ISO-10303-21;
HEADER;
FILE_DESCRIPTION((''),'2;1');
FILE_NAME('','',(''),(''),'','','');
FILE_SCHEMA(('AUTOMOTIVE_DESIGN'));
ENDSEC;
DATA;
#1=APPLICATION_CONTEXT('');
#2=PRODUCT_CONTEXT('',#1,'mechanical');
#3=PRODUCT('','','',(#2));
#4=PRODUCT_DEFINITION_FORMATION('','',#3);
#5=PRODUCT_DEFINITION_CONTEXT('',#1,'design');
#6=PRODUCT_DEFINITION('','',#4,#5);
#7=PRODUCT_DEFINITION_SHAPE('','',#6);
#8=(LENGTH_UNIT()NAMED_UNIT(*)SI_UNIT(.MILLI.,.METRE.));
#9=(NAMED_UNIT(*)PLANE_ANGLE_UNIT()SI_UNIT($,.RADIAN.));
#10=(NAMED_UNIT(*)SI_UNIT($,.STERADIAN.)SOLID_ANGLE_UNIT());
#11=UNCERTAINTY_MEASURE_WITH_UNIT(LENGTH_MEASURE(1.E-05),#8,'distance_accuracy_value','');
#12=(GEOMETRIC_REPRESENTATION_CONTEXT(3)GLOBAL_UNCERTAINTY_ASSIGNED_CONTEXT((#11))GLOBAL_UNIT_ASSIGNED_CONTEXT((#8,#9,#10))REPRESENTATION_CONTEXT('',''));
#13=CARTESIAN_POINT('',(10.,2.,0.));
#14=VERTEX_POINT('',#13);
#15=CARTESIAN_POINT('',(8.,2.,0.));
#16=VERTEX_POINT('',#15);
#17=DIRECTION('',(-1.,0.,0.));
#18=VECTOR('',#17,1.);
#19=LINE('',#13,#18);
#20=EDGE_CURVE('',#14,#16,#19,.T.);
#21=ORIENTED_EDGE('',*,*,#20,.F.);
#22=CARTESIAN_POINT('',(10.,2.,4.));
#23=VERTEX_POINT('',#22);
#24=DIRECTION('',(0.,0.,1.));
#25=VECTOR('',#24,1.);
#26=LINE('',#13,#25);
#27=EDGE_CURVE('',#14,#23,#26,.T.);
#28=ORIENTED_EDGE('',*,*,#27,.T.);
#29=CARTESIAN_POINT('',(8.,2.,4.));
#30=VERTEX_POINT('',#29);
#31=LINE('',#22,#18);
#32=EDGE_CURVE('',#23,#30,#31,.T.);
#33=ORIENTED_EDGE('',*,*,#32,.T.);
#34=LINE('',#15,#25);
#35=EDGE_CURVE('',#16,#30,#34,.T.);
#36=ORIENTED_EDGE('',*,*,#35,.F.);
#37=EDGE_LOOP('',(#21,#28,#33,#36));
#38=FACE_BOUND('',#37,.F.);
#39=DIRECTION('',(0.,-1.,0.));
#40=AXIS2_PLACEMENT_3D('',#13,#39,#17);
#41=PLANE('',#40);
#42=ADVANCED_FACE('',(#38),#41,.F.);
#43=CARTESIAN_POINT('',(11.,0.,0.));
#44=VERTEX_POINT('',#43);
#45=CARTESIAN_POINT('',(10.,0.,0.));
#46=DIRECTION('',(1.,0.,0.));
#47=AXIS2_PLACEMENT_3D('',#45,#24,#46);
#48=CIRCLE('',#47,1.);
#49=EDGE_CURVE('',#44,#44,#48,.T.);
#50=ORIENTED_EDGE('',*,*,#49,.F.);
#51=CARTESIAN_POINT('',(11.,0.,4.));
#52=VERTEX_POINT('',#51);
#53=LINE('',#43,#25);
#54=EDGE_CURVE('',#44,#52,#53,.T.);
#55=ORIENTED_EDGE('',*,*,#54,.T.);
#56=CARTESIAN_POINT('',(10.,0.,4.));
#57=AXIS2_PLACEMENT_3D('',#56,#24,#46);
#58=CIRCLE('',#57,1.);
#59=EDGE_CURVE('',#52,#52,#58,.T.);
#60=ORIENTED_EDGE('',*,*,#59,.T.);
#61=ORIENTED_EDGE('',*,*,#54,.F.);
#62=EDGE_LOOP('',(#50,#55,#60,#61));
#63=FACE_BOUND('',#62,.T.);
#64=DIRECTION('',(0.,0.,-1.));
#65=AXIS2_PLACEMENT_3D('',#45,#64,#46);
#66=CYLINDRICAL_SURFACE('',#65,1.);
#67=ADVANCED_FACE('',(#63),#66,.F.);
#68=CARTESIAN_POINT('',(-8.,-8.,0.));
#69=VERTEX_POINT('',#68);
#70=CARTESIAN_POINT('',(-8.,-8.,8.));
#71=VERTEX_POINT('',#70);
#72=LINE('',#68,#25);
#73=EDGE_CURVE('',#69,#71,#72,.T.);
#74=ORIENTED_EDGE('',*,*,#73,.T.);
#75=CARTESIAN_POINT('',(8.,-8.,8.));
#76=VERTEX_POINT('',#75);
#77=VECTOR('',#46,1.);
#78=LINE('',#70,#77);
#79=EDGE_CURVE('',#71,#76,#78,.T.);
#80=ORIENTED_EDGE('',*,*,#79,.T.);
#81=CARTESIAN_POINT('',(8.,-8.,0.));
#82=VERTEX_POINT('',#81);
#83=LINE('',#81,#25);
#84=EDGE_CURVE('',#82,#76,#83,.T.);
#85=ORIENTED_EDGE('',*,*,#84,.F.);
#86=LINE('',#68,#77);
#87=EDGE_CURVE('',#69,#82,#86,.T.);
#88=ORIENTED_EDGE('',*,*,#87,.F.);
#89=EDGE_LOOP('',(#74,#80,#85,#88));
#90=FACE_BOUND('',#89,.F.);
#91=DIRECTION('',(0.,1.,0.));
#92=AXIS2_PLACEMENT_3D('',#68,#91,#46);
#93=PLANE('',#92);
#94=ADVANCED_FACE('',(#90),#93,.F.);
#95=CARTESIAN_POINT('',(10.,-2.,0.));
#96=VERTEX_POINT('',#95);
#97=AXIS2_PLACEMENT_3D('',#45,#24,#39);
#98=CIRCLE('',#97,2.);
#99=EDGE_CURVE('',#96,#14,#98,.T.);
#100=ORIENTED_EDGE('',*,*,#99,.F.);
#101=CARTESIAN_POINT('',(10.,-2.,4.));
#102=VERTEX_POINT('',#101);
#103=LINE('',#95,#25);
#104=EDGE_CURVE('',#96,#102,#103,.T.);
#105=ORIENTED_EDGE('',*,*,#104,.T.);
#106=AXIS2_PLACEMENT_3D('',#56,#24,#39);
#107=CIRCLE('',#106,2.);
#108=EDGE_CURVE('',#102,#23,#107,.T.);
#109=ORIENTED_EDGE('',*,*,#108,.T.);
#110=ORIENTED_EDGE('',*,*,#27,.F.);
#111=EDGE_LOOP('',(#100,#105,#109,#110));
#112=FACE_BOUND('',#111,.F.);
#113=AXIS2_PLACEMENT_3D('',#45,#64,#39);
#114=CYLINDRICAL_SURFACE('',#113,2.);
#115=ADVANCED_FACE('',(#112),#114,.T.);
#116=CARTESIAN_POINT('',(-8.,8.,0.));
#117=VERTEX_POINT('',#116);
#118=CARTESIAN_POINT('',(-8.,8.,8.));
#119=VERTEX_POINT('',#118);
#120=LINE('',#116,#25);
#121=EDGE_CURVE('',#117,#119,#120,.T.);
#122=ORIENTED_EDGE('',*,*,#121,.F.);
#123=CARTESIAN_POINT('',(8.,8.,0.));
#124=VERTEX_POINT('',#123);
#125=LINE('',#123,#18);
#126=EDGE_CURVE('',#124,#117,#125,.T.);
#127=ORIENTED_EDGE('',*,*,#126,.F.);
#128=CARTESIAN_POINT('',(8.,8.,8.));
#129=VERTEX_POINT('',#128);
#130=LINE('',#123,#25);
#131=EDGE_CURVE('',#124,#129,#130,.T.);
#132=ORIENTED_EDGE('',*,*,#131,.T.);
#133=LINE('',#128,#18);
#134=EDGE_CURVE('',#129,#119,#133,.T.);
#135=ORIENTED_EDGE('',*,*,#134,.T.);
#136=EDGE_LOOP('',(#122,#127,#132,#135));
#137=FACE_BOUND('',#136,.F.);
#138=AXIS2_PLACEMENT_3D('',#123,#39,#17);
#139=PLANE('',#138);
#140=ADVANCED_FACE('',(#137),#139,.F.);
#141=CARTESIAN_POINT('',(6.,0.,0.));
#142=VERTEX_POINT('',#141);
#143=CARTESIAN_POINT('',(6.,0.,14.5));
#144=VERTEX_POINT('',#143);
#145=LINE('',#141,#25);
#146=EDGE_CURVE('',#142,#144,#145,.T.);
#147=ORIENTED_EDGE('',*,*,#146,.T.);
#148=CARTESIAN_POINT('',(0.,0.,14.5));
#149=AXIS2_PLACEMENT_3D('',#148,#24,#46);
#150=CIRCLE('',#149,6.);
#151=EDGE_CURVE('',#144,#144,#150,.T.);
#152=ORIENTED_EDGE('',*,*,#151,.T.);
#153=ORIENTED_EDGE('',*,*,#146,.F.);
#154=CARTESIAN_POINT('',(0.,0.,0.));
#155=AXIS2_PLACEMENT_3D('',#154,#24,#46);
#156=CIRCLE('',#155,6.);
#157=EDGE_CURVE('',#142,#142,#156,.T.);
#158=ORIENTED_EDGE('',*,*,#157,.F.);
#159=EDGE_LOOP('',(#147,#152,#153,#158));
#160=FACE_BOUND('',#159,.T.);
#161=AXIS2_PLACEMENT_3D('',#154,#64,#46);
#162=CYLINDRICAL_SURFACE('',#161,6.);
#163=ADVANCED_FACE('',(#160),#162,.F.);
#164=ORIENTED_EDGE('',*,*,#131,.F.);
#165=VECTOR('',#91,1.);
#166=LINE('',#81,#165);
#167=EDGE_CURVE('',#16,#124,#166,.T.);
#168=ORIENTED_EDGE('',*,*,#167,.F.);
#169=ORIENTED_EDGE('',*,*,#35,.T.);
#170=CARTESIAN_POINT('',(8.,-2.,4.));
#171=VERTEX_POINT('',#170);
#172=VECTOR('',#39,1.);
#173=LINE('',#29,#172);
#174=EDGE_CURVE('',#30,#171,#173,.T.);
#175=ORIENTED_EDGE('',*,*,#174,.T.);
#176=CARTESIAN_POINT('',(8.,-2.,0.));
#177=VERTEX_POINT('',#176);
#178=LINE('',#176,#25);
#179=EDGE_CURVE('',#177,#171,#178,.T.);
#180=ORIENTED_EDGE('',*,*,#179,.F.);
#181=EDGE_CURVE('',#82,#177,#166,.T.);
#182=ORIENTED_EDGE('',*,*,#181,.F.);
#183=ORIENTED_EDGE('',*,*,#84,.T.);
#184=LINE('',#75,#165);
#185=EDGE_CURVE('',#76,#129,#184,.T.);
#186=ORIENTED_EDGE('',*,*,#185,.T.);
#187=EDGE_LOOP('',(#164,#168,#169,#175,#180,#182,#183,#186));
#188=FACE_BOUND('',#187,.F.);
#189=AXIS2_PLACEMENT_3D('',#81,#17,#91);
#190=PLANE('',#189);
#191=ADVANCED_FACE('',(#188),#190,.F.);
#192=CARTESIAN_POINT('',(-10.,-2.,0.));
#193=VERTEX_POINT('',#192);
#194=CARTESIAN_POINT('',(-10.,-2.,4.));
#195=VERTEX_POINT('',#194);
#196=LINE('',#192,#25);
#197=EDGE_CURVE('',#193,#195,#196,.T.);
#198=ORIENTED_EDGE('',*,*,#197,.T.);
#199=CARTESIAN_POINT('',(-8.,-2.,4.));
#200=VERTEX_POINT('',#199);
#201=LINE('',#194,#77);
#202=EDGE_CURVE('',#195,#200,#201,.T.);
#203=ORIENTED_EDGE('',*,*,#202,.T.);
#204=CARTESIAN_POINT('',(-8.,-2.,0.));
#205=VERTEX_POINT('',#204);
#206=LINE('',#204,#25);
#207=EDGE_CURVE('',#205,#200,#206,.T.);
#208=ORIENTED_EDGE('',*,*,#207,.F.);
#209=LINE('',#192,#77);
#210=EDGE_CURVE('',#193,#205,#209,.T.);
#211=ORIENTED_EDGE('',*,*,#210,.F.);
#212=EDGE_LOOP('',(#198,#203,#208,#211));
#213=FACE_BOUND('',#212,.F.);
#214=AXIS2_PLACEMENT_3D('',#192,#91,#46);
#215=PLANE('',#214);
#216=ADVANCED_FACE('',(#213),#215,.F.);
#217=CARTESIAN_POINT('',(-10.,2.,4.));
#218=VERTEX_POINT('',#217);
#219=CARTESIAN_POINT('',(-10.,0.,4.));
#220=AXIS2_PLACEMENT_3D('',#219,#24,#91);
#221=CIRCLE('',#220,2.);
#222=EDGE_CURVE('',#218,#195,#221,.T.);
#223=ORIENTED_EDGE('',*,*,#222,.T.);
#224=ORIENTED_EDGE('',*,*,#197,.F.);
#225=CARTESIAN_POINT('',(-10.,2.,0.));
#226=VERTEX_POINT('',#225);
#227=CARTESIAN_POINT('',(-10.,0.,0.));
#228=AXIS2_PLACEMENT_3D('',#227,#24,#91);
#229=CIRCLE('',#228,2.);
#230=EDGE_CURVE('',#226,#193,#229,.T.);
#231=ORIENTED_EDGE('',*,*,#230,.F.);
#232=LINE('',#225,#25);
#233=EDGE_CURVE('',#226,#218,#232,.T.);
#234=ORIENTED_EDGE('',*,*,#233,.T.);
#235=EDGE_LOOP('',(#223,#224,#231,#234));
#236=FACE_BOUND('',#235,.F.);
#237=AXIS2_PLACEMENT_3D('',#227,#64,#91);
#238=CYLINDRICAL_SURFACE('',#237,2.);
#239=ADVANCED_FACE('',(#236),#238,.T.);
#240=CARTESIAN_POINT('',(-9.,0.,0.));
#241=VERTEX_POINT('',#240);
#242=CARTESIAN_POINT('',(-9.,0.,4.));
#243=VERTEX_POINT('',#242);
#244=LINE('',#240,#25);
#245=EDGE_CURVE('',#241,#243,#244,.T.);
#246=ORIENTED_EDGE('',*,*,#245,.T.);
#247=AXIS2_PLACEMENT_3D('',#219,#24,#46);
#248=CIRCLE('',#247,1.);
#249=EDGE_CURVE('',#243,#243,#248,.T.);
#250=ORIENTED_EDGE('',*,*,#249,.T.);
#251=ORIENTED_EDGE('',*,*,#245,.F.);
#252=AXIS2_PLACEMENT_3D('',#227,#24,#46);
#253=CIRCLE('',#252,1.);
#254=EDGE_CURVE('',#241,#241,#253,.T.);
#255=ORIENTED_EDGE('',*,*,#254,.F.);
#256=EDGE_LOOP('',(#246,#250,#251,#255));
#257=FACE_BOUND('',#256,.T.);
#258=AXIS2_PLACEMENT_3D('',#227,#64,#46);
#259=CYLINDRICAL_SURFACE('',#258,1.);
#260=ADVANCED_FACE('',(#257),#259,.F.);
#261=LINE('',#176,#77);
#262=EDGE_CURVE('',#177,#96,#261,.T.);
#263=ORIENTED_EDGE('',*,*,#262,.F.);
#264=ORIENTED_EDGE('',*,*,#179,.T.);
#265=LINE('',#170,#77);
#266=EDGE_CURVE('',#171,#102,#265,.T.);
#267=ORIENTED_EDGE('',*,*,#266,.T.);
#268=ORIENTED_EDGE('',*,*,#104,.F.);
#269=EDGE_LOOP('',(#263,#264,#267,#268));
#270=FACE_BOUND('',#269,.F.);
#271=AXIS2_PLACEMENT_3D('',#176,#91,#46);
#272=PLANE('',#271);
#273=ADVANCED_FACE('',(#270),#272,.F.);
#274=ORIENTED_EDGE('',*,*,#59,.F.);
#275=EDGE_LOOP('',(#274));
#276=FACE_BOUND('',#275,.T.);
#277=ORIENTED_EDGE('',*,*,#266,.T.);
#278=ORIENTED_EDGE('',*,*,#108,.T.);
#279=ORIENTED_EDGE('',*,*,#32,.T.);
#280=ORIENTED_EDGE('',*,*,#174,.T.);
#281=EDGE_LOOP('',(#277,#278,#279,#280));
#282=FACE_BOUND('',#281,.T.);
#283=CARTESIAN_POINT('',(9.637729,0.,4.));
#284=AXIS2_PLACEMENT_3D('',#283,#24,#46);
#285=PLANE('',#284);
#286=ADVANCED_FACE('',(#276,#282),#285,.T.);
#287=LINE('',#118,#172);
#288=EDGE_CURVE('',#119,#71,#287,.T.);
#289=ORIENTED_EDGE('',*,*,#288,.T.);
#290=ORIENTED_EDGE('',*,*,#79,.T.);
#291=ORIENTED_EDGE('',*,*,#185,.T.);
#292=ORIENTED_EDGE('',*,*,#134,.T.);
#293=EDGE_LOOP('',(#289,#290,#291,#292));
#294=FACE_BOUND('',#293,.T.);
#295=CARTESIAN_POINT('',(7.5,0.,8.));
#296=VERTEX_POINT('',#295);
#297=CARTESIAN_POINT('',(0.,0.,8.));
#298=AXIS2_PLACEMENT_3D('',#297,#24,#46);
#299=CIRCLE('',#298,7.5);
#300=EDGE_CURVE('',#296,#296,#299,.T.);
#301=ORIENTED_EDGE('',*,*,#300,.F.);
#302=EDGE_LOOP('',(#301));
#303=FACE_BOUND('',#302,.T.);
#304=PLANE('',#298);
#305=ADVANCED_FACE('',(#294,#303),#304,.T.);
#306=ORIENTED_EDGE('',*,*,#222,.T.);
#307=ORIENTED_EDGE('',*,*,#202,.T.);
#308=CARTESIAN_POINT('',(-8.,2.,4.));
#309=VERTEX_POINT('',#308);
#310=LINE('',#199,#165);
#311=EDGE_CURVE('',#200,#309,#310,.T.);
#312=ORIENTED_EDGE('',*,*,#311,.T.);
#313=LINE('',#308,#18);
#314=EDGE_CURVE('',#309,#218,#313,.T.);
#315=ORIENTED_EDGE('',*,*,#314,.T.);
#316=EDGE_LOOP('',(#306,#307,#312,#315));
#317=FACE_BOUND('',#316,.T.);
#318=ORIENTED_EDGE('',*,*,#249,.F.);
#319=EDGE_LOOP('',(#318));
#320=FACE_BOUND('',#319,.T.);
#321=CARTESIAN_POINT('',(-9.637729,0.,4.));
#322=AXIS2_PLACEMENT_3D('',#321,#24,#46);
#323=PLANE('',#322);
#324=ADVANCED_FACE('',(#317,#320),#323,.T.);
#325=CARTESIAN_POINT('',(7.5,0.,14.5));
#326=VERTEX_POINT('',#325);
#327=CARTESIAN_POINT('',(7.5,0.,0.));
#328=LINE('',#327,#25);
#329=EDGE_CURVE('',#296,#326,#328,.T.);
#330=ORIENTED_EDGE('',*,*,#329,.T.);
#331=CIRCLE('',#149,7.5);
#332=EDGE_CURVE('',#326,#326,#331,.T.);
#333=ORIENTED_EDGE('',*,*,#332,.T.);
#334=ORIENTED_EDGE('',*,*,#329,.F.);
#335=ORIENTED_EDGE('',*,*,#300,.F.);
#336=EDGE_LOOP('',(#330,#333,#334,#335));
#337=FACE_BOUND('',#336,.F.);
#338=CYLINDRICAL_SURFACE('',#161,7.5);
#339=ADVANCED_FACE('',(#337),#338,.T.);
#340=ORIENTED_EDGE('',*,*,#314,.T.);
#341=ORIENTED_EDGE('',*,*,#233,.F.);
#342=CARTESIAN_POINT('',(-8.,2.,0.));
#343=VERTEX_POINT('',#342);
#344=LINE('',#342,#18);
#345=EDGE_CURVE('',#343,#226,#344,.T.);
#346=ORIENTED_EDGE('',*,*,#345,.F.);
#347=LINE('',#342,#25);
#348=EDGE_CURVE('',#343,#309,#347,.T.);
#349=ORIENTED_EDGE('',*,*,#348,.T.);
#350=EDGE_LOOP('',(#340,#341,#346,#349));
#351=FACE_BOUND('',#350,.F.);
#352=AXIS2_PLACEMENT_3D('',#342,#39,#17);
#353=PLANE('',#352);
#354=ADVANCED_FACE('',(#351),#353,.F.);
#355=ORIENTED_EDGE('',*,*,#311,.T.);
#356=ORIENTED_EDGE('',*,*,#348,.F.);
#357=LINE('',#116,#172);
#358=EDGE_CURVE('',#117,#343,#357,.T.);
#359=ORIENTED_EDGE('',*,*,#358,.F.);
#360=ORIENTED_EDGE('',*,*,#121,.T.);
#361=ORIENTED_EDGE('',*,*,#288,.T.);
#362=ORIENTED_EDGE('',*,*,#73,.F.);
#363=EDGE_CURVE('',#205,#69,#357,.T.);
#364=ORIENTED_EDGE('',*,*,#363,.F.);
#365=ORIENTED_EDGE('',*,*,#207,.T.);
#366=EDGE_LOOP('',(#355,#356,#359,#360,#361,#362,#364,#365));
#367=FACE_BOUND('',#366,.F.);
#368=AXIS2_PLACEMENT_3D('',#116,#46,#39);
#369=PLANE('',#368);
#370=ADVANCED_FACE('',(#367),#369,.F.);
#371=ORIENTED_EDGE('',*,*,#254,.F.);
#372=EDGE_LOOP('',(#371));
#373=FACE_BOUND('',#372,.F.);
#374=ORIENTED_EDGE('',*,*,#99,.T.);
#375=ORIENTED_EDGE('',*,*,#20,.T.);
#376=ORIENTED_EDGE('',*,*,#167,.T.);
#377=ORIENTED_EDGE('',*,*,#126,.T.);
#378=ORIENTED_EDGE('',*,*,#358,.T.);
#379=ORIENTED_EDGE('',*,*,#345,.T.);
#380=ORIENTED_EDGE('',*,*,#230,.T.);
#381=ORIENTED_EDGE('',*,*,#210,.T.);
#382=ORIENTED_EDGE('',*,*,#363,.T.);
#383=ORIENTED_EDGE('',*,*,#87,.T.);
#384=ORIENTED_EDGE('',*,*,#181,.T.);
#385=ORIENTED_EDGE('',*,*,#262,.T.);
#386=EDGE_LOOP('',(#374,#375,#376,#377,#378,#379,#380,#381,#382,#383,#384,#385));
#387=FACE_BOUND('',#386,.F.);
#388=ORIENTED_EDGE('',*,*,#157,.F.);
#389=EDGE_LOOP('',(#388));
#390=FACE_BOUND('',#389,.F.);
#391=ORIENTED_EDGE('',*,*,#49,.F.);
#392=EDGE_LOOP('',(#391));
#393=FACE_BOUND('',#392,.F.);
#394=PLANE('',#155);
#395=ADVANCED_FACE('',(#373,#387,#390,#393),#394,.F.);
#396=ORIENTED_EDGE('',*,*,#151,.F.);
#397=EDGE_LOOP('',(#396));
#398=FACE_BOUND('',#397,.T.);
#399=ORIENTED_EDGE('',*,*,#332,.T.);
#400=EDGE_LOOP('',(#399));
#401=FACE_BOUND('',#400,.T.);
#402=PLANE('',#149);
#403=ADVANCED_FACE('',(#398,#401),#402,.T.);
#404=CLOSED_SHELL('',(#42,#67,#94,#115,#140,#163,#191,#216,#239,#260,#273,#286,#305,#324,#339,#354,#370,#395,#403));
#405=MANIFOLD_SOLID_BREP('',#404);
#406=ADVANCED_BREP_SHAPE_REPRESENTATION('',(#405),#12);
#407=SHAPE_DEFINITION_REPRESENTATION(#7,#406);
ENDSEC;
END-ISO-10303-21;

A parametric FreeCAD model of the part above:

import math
import FreeCAD as App
import Part
import Sketcher
from FreeCAD import Vector

doc = App.newDocument("Part")
body = doc.addObject("PartDesign::Body", "Body")

# Sketch on XY plane
sketch1 = body.newObject("Sketcher::SketchObject", "Sketch")
sketch1.AttachmentSupport = (doc.getObject("XY_Plane"), [""])
sketch1.MapMode = "FlatFace"
sketch1.addGeometry(Part.Circle(Vector(0, 0, 0), Vector(0, 0, 1), 8), False)
sketch1.addGeometry(Part.Circle(Vector(0, 0, 0), Vector(0, 0, 1), 6), False)
sketch1.addConstraint(Sketcher.Constraint("Coincident", 0, 3, -1, 1))
sketch1.addConstraint(Sketcher.Constraint("Coincident", 1, 3, -1, 1))
sketch1.addConstraint(Sketcher.Constraint("Diameter", 0, 15.0))
sketch1.addConstraint(Sketcher.Constraint("Diameter", 1, 12.0))
pad1 = body.newObject("PartDesign::Pad", "Pad")
pad1.Profile = sketch1
pad1.Length = 14.5

# Sketch on XY plane
sketch2 = body.newObject("Sketcher::SketchObject", "Sketch001")
sketch2.AttachmentSupport = (doc.getObject("XY_Plane"), [""])
sketch2.MapMode = "FlatFace"
sketch2.addGeometry(Part.LineSegment(Vector(8, 8, 0), Vector(-8, 8, 0)), False)
sketch2.addGeometry(Part.LineSegment(Vector(-8, 8, 0), Vector(-8, -8, 0)), False)
sketch2.addGeometry(Part.LineSegment(Vector(-8, -8, 0), Vector(8, -8, 0)), False)
sketch2.addGeometry(Part.LineSegment(Vector(8, -8, 0), Vector(8, 8, 0)), False)
sketch2.addGeometry(Part.Circle(Vector(0, 0, 0), Vector(0, 0, 1), 8), False)
sketch2.addConstraint(Sketcher.Constraint("Coincident", 0, 2, 1, 1))
sketch2.addConstraint(Sketcher.Constraint("Coincident", 1, 2, 2, 1))
sketch2.addConstraint(Sketcher.Constraint("Coincident", 2, 2, 3, 1))
sketch2.addConstraint(Sketcher.Constraint("Coincident", 3, 2, 0, 1))
sketch2.addConstraint(Sketcher.Constraint("Horizontal", 0))
sketch2.addConstraint(Sketcher.Constraint("Vertical", 1))
sketch2.addConstraint(Sketcher.Constraint("Horizontal", 2))
sketch2.addConstraint(Sketcher.Constraint("Vertical", 3))
sketch2.addConstraint(Sketcher.Constraint("Coincident", 4, 3, -1, 1))
sketch2.addConstraint(Sketcher.Constraint("Symmetric", 0, 2, 2, 2, -1, 1))
sketch2.addConstraint(Sketcher.Constraint("Equal", 2, 1))
sketch2.addConstraint(Sketcher.Constraint("Diameter", 4, 15.0))
sketch2.addConstraint(Sketcher.Constraint("DistanceX", 0, 2, 0, 1, 16.0))
pad2 = body.newObject("PartDesign::Pad", "Pad001")
pad2.Profile = sketch2
pad2.Length = 8

# Sketch on XY plane
sketch3 = body.newObject("Sketcher::SketchObject", "Sketch002")
sketch3.AttachmentSupport = (doc.getObject("XY_Plane"), [""])
sketch3.MapMode = "FlatFace"
sketch3.addGeometry(Part.LineSegment(Vector(-8, -2, 0), Vector(-8, 2, 0)), False)
sketch3.addGeometry(Part.LineSegment(Vector(-8, 2, 0), Vector(-10, 2, 0)), False)
sketch3.addGeometry(Part.ArcOfCircle(Part.Circle(Vector(-10, 0, 0), Vector(0, 0, 1), 2), math.radians(90), math.radians(270)), False)
sketch3.addGeometry(Part.LineSegment(Vector(-10, -2, 0), Vector(-8, -2, 0)), False)
sketch3.addGeometry(Part.Circle(Vector(-10, 0, 0), Vector(0, 0, 1), 1), False)
sketch3.addGeometry(Part.LineSegment(Vector(10, 2, 0), Vector(8, 2, 0)), False)
sketch3.addGeometry(Part.LineSegment(Vector(8, 2, 0), Vector(8, -2, 0)), False)
sketch3.addGeometry(Part.LineSegment(Vector(8, -2, 0), Vector(10, -2, 0)), False)
sketch3.addGeometry(Part.ArcOfCircle(Part.Circle(Vector(10, 0, 0), Vector(0, 0, 1), 2), math.radians(-90), math.radians(90)), False)
sketch3.addGeometry(Part.Circle(Vector(10, 0, 0), Vector(0, 0, 1), 1), False)
sketch3.addConstraint(Sketcher.Constraint("Coincident", 0, 2, 1, 1))
sketch3.addConstraint(Sketcher.Constraint("Tangent", 1, 2, 2, 1))
sketch3.addConstraint(Sketcher.Constraint("Tangent", 2, 2, 3, 1))
sketch3.addConstraint(Sketcher.Constraint("Coincident", 3, 2, 0, 1))
sketch3.addConstraint(Sketcher.Constraint("Coincident", 5, 2, 6, 1))
sketch3.addConstraint(Sketcher.Constraint("Coincident", 6, 2, 7, 1))
sketch3.addConstraint(Sketcher.Constraint("Tangent", 7, 2, 8, 1))
sketch3.addConstraint(Sketcher.Constraint("Tangent", 8, 2, 5, 1))
sketch3.addConstraint(Sketcher.Constraint("Vertical", 0))
sketch3.addConstraint(Sketcher.Constraint("Horizontal", 1))
sketch3.addConstraint(Sketcher.Constraint("Horizontal", 3))
sketch3.addConstraint(Sketcher.Constraint("Horizontal", 5))
sketch3.addConstraint(Sketcher.Constraint("Vertical", 6))
sketch3.addConstraint(Sketcher.Constraint("Horizontal", 7))
sketch3.addConstraint(Sketcher.Constraint("Coincident", 4, 3, 2, 3))
sketch3.addConstraint(Sketcher.Constraint("Coincident", 9, 3, 8, 3))
sketch3.addConstraint(Sketcher.Constraint("Equal", 2, 8))
sketch3.addConstraint(Sketcher.Constraint("Equal", 4, 9))
sketch3.addConstraint(Sketcher.Constraint("Symmetric", 2, 3, 8, 3, -1, 1))
sketch3.addConstraint(Sketcher.Constraint("Symmetric", 0, 2, 5, 2, -2))
sketch3.addConstraint(Sketcher.Constraint("Diameter", 4, 2.0))
sketch3.addConstraint(Sketcher.Constraint("Radius", 2, 2.0))
sketch3.addConstraint(Sketcher.Constraint("DistanceX", 1, 2, 1, 1, 2.0))
sketch3.addConstraint(Sketcher.Constraint("DistanceX", 2, 3, -1, 1, 10.0))
pad3 = body.newObject("PartDesign::Pad", "Pad002")
pad3.Profile = sketch3
pad3.Length = 4

doc.recompute()
